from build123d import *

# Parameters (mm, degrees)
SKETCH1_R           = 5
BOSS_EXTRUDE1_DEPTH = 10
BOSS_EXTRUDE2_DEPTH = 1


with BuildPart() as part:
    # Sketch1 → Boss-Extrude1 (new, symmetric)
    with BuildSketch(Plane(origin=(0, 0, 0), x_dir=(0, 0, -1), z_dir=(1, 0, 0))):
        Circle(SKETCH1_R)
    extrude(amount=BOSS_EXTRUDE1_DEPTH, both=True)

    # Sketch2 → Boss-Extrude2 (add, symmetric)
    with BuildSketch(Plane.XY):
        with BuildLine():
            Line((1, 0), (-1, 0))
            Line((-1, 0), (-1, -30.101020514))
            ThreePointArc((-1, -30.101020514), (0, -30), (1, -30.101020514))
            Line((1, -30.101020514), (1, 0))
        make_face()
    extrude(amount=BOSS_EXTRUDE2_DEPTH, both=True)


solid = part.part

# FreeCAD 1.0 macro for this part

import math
import FreeCAD as App
import Part
import Sketcher
from FreeCAD import Vector
Q = App.Units.Quantity

doc = App.newDocument("Part")
body = doc.addObject("PartDesign::Body", "Body")

sketch1 = body.newObject("Sketcher::SketchObject", "Sketch")
sketch1.AttachmentSupport = (doc.getObject("YZ_Plane"), [""])
sketch1.MapMode = "FlatFace"
sketch1.addGeometry(Part.Circle(Vector(0, 0, 0), Vector(0, 0, 1), 5), False)
sketch1.addConstraint(Sketcher.Constraint("Coincident", 0, 3, -1, 1))
sketch1.addConstraint(Sketcher.Constraint("Diameter", 0, Q("10 mm")))
pad1 = body.newObject("PartDesign::Pad", "Pad")
pad1.Profile = sketch1
pad1.Length = 20
pad1.Midplane = True

sketch2 = body.newObject("Sketcher::SketchObject", "Sketch001")
sketch2.AttachmentSupport = (doc.getObject("XY_Plane"), [""])
sketch2.MapMode = "FlatFace"
sketch2.addGeometry(Part.LineSegment(Vector(1, 0, 0), Vector(-1, 0, 0)), False)
sketch2.addGeometry(Part.LineSegment(Vector(-1, 0, 0), Vector(-1, -30.1, 0)), False)
sketch2.addGeometry(Part.ArcOfCircle(Part.Circle(Vector(0, -35, 0), Vector(0, 0, 1), 5), math.radians(78), math.radians(102)), False)
sketch2.addGeometry(Part.LineSegment(Vector(1, -30.1, 0), Vector(1, 0, 0)), False)
sketch2.addConstraint(Sketcher.Constraint("Coincident", 0, 2, 1, 1))
sketch2.addConstraint(Sketcher.Constraint("Coincident", 1, 2, 2, 2))
sketch2.addConstraint(Sketcher.Constraint("Coincident", 2, 1, 3, 1))
sketch2.addConstraint(Sketcher.Constraint("Coincident", 3, 2, 0, 1))
sketch2.addConstraint(Sketcher.Constraint("Horizontal", 0))
sketch2.addConstraint(Sketcher.Constraint("Vertical", 1))
sketch2.addConstraint(Sketcher.Constraint("Vertical", 3))
sketch2.addConstraint(Sketcher.Constraint("Symmetric", 0, 2, 3, 2, -1, 1))
sketch2.addConstraint(Sketcher.Constraint("PointOnObject", 2, 3, -2))
sketch2.addConstraint(Sketcher.Constraint("Radius", 2, Q("5 mm")))
sketch2.addConstraint(Sketcher.Constraint("DistanceX", 0, 2, 0, 1, Q("2 mm")))
sketch2.addConstraint(Sketcher.Constraint("DistanceY", 2, 3, -1, 1, Q("35 mm")))
pad2 = body.newObject("PartDesign::Pad", "Pad001")
pad2.Profile = sketch2
pad2.Length = 2
pad2.Midplane = True

doc.recompute()
